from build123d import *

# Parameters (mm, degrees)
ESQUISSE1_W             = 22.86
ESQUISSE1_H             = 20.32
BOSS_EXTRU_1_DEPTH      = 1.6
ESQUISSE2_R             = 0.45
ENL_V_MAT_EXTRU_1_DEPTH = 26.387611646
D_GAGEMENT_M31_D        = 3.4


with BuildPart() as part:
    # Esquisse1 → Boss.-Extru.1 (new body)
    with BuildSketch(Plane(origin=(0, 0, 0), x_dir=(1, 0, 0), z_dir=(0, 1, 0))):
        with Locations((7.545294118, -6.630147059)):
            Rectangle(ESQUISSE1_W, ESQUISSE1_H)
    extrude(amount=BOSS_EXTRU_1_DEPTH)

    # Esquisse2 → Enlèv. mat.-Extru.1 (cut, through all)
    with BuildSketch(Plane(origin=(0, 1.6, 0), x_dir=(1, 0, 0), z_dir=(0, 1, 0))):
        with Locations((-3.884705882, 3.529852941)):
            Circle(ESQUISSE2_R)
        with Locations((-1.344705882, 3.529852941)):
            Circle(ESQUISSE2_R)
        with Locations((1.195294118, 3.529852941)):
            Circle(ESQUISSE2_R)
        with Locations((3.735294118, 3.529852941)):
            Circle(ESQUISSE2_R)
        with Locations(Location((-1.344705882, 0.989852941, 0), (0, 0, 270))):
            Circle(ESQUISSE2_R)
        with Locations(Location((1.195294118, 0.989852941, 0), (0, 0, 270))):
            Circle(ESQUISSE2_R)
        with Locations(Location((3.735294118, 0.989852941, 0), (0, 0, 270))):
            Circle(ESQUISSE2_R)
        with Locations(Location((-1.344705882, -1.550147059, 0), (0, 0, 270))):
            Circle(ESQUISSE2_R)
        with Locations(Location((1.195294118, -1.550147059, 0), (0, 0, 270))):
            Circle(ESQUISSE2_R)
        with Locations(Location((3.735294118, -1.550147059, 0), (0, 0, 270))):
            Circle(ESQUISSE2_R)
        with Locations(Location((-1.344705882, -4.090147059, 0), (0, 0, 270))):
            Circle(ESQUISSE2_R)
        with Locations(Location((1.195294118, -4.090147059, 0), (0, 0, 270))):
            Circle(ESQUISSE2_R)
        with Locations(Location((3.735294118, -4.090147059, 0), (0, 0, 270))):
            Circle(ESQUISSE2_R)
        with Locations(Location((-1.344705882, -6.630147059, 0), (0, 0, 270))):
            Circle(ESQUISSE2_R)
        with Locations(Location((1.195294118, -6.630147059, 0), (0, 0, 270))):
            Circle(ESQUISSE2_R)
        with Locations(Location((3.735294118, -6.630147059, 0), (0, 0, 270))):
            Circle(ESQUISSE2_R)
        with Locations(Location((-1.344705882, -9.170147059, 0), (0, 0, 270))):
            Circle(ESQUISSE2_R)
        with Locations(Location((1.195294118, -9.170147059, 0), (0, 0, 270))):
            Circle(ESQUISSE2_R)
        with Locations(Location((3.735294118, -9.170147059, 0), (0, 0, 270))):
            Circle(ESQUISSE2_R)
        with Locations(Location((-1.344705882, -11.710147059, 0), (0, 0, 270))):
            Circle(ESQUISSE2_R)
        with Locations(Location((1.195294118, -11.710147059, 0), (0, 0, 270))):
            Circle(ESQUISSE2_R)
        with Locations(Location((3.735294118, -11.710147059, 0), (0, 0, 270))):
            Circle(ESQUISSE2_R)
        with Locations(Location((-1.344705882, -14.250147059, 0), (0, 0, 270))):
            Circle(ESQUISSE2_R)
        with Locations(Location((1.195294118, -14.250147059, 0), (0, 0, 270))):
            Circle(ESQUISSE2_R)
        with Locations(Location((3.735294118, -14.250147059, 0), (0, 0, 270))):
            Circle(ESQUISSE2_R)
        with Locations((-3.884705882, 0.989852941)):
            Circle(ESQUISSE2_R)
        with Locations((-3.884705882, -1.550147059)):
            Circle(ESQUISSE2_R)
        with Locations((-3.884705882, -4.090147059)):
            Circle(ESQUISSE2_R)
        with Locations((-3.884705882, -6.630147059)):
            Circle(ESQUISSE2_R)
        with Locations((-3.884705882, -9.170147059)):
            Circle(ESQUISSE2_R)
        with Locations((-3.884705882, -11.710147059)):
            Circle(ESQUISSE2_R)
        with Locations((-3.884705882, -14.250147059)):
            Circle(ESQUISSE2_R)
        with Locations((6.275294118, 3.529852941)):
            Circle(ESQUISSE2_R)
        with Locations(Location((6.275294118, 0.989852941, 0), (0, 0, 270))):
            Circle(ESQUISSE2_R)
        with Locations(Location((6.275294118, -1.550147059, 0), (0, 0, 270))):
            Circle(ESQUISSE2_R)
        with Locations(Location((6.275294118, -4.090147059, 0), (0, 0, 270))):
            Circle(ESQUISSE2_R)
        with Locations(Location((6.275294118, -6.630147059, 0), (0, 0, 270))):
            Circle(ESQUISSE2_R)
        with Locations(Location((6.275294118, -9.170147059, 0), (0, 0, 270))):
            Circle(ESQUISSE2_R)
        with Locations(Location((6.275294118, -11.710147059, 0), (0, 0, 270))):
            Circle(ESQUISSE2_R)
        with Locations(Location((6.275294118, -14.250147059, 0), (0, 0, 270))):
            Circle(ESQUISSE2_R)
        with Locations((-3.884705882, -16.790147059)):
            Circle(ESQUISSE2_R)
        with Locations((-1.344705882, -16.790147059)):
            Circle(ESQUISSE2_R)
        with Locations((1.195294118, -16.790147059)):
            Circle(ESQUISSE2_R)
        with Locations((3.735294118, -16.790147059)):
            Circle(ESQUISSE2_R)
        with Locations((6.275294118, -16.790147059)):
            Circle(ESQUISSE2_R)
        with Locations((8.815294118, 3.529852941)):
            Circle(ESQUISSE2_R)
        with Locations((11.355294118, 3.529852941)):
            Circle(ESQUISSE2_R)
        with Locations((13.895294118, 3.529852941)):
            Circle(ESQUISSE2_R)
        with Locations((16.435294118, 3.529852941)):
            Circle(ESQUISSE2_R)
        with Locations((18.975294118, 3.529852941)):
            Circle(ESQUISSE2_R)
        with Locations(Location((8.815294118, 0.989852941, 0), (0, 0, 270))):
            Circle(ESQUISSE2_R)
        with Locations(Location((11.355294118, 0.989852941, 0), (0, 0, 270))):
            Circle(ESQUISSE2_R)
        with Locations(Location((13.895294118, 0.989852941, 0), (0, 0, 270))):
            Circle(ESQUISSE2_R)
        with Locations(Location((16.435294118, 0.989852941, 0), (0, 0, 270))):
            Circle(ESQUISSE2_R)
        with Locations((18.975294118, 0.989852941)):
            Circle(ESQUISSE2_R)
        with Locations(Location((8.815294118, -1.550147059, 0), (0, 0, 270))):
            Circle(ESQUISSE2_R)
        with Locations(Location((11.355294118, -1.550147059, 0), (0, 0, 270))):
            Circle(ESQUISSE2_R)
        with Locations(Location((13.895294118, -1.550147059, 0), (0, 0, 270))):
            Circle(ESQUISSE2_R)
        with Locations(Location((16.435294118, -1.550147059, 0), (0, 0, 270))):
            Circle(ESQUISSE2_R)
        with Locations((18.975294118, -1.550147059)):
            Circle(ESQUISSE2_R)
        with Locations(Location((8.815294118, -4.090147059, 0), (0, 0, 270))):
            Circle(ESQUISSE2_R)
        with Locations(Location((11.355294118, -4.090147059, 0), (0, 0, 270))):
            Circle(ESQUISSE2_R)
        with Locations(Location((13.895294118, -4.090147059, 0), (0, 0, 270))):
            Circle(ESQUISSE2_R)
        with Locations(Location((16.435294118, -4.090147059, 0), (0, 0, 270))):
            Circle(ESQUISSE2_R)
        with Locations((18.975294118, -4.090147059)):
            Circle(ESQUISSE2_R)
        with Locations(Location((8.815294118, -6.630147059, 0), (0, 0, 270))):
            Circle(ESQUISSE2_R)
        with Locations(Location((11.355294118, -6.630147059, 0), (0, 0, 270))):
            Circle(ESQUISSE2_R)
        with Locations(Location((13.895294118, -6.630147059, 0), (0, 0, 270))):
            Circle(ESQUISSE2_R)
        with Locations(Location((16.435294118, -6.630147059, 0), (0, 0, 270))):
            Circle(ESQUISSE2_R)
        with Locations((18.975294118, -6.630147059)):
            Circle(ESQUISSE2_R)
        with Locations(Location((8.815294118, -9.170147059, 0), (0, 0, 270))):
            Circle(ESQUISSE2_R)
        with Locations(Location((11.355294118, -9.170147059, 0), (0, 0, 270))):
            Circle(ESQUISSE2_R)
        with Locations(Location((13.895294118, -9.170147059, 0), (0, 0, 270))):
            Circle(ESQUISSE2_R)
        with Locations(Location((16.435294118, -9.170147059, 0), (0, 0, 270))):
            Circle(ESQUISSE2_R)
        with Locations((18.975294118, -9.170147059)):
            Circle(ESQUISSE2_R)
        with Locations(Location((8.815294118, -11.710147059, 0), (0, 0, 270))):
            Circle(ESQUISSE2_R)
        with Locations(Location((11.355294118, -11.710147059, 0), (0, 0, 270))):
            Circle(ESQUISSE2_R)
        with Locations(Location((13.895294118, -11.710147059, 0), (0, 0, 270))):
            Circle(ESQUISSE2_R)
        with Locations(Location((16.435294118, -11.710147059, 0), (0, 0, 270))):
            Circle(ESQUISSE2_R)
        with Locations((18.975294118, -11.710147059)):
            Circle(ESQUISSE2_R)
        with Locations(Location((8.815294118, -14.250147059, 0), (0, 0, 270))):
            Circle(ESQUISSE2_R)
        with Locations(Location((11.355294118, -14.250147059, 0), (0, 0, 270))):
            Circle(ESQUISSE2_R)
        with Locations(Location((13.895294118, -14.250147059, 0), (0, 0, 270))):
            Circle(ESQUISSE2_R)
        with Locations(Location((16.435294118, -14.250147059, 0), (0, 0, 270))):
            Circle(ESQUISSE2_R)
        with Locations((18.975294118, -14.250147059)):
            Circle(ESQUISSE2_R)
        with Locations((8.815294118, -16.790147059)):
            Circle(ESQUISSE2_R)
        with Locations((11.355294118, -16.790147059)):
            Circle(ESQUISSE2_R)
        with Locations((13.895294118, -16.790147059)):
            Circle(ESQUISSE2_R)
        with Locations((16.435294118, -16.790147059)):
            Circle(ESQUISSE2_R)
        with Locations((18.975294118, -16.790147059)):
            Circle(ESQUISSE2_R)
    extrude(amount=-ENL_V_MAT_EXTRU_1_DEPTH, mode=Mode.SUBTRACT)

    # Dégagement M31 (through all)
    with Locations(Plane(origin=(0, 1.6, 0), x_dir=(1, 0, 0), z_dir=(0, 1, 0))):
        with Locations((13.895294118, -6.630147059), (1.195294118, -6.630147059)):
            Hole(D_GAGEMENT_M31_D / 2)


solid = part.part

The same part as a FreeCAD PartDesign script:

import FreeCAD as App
import Part
import Sketcher
from FreeCAD import Vector
Q = App.Units.Quantity

doc = App.newDocument("Part")
body = doc.addObject("PartDesign::Body", "Body")

# Sketch on XZ plane
sketch1 = body.newObject("Sketcher::SketchObject", "Sketch")
sketch1.AttachmentSupport = (doc.getObject("XZ_Plane"), [""])
sketch1.MapMode = "FlatFace"
sketch1.addGeometry(Part.LineSegment(Vector(-4, -4, 0), Vector(-4, 17, 0)), False)
sketch1.addGeometry(Part.LineSegment(Vector(-4, 17, 0), Vector(19, 17, 0)), False)
sketch1.addGeometry(Part.LineSegment(Vector(19, 17, 0), Vector(19, -4, 0)), False)
sketch1.addGeometry(Part.LineSegment(Vector(19, -4, 0), Vector(-4, -4, 0)), False)
sketch1.addConstraint(Sketcher.Constraint("Coincident", 0, 2, 1, 1))
sketch1.addConstraint(Sketcher.Constraint("Coincident", 1, 2, 2, 1))
sketch1.addConstraint(Sketcher.Constraint("Coincident", 2, 2, 3, 1))
sketch1.addConstraint(Sketcher.Constraint("Coincident", 3, 2, 0, 1))
sketch1.addConstraint(Sketcher.Constraint("Vertical", 0))
sketch1.addConstraint(Sketcher.Constraint("Horizontal", 1))
sketch1.addConstraint(Sketcher.Constraint("Vertical", 2))
sketch1.addConstraint(Sketcher.Constraint("Horizontal", 3))
sketch1.addConstraint(Sketcher.Constraint("DistanceX", 1, 1, 1, 2, Q("22.86 mm")))
sketch1.addConstraint(Sketcher.Constraint("DistanceY", 0, 1, 0, 2, Q("20.32 mm")))
sketch1.addConstraint(Sketcher.Constraint("DistanceX", 0, 2, -1, 1, Q("3.884706 mm")))
sketch1.addConstraint(Sketcher.Constraint("DistanceY", -1, 1, 0, 2, Q("16.790147 mm")))
pad1 = body.newObject("PartDesign::Pad", "Pad")
pad1.Profile = sketch1
pad1.Length = 1.6
pad1.Reversed = True

# Sketch on XZ plane
sketch2 = body.newObject("Sketcher::SketchObject", "Sketch001")
sketch2.AttachmentSupport = (doc.getObject("XZ_Plane"), [""])
sketch2.MapMode = "FlatFace"
sketch2.AttachmentOffset = App.Placement(Vector(0, 0, -1.6), App.Rotation())
sketch2.addGeometry(Part.Circle(Vector(-3.88, -3.53, 0), Vector(0, 0, 1), 0.45), False)
sketch2.addGeometry(Part.Circle(Vector(-1.34, -3.53, 0), Vector(0, 0, 1), 0.45), False)
sketch2.addGeometry(Part.Circle(Vector(1.2, -3.53, 0), Vector(0, 0, 1), 0.45), False)
sketch2.addGeometry(Part.Circle(Vector(3.74, -3.53, 0), Vector(0, 0, 1), 0.45), False)
sketch2.addGeometry(Part.Circle(Vector(-1.34, -0.99, 0), Vector(0, 0, 1), 0.45), False)
sketch2.addGeometry(Part.Circle(Vector(1.2, -0.99, 0), Vector(0, 0, 1), 0.45), False)
sketch2.addGeometry(Part.Circle(Vector(3.74, -0.99, 0), Vector(0, 0, 1), 0.45), False)
sketch2.addGeometry(Part.Circle(Vector(-1.34, 1.55, 0), Vector(0, 0, 1), 0.45), False)
sketch2.addGeometry(Part.Circle(Vector(1.2, 1.55, 0), Vector(0, 0, 1), 0.45), False)
sketch2.addGeometry(Part.Circle(Vector(3.74, 1.55, 0), Vector(0, 0, 1), 0.45), False)
sketch2.addGeometry(Part.Circle(Vector(-1.34, 4.09, 0), Vector(0, 0, 1), 0.45), False)
sketch2.addGeometry(Part.Circle(Vector(1.2, 4.09, 0), Vector(0, 0, 1), 0.45), False)
sketch2.addGeometry(Part.Circle(Vector(3.74, 4.09, 0), Vector(0, 0, 1), 0.45), False)
sketch2.addGeometry(Part.Circle(Vector(-1.34, 6.63, 0), Vector(0, 0, 1), 0.45), False)
sketch2.addGeometry(Part.Circle(Vector(1.2, 6.63, 0), Vector(0, 0, 1), 0.45), False)
sketch2.addGeometry(Part.Circle(Vector(3.74, 6.63, 0), Vector(0, 0, 1), 0.45), False)
sketch2.addGeometry(Part.Circle(Vector(-1.34, 9.17, 0), Vector(0, 0, 1), 0.45), False)
sketch2.addGeometry(Part.Circle(Vector(1.2, 9.17, 0), Vector(0, 0, 1), 0.45), False)
sketch2.addGeometry(Part.Circle(Vector(3.74, 9.17, 0), Vector(0, 0, 1), 0.45), False)
sketch2.addGeometry(Part.Circle(Vector(-1.34, 11.71, 0), Vector(0, 0, 1), 0.45), False)
sketch2.addGeometry(Part.Circle(Vector(1.2, 11.71, 0), Vector(0, 0, 1), 0.45), False)
sketch2.addGeometry(Part.Circle(Vector(3.74, 11.71, 0), Vector(0, 0, 1), 0.45), False)
sketch2.addGeometry(Part.Circle(Vector(-1.34, 14.25, 0), Vector(0, 0, 1), 0.45), False)
sketch2.addGeometry(Part.Circle(Vector(1.2, 14.25, 0), Vector(0, 0, 1), 0.45), False)
sketch2.addGeometry(Part.Circle(Vector(3.74, 14.25, 0), Vector(0, 0, 1), 0.45), False)
sketch2.addGeometry(Part.Circle(Vector(-3.88, -0.99, 0), Vector(0, 0, 1), 0.45), False)
sketch2.addGeometry(Part.Circle(Vector(-3.88, 1.55, 0), Vector(0, 0, 1), 0.45), False)
sketch2.addGeometry(Part.Circle(Vector(-3.88, 4.09, 0), Vector(0, 0, 1), 0.45), False)
sketch2.addGeometry(Part.Circle(Vector(-3.88, 6.63, 0), Vector(0, 0, 1), 0.45), False)
sketch2.addGeometry(Part.Circle(Vector(-3.88, 9.17, 0), Vector(0, 0, 1), 0.45), False)
sketch2.addGeometry(Part.Circle(Vector(-3.88, 11.71, 0), Vector(0, 0, 1), 0.45), False)
sketch2.addGeometry(Part.Circle(Vector(-3.88, 14.25, 0), Vector(0, 0, 1), 0.45), False)
sketch2.addGeometry(Part.Circle(Vector(6.28, -3.53, 0), Vector(0, 0, 1), 0.45), False)
sketch2.addGeometry(Part.Circle(Vector(6.28, -0.99, 0), Vector(0, 0, 1), 0.45), False)
sketch2.addGeometry(Part.Circle(Vector(6.28, 1.55, 0), Vector(0, 0, 1), 0.45), False)
sketch2.addGeometry(Part.Circle(Vector(6.28, 4.09, 0), Vector(0, 0, 1), 0.45), False)
sketch2.addGeometry(Part.Circle(Vector(6.28, 6.63, 0), Vector(0, 0, 1), 0.45), False)
sketch2.addGeometry(Part.Circle(Vector(6.28, 9.17, 0), Vector(0, 0, 1), 0.45), False)
sketch2.addGeometry(Part.Circle(Vector(6.28, 11.71, 0), Vector(0, 0, 1), 0.45), False)
sketch2.addGeometry(Part.Circle(Vector(6.28, 14.25, 0), Vector(0, 0, 1), 0.45), False)
sketch2.addGeometry(Part.Circle(Vector(-3.88, 16.79, 0), Vector(0, 0, 1), 0.45), False)
sketch2.addGeometry(Part.Circle(Vector(-1.34, 16.79, 0), Vector(0, 0, 1), 0.45), False)
sketch2.addGeometry(Part.Circle(Vector(1.2, 16.79, 0), Vector(0, 0, 1), 0.45), False)
sketch2.addGeometry(Part.Circle(Vector(3.74, 16.79, 0), Vector(0, 0, 1), 0.45), False)
sketch2.addGeometry(Part.Circle(Vector(6.28, 16.79, 0), Vector(0, 0, 1), 0.45), False)
sketch2.addGeometry(Part.Circle(Vector(8.82, -3.53, 0), Vector(0, 0, 1), 0.45), False)
sketch2.addGeometry(Part.Circle(Vector(11.36, -3.53, 0), Vector(0, 0, 1), 0.45), False)
sketch2.addGeometry(Part.Circle(Vector(13.9, -3.53, 0), Vector(0, 0, 1), 0.45), False)
sketch2.addGeometry(Part.Circle(Vector(16.44, -3.53, 0), Vector(0, 0, 1), 0.45), False)
sketch2.addGeometry(Part.Circle(Vector(18.98, -3.53, 0), Vector(0, 0, 1), 0.45), False)
sketch2.addGeometry(Part.Circle(Vector(8.82, -0.99, 0), Vector(0, 0, 1), 0.45), False)
sketch2.addGeometry(Part.Circle(Vector(11.36, -0.99, 0), Vector(0, 0, 1), 0.45), False)
sketch2.addGeometry(Part.Circle(Vector(13.9, -0.99, 0), Vector(0, 0, 1), 0.45), False)
sketch2.addGeometry(Part.Circle(Vector(16.44, -0.99, 0), Vector(0, 0, 1), 0.45), False)
sketch2.addGeometry(Part.Circle(Vector(18.98, -0.99, 0), Vector(0, 0, 1), 0.45), False)
sketch2.addGeometry(Part.Circle(Vector(8.82, 1.55, 0), Vector(0, 0, 1), 0.45), False)
sketch2.addGeometry(Part.Circle(Vector(11.36, 1.55, 0), Vector(0, 0, 1), 0.45), False)
sketch2.addGeometry(Part.Circle(Vector(13.9, 1.55, 0), Vector(0, 0, 1), 0.45), False)
sketch2.addGeometry(Part.Circle(Vector(16.44, 1.55, 0), Vector(0, 0, 1), 0.45), False)
sketch2.addGeometry(Part.Circle(Vector(18.98, 1.55, 0), Vector(0, 0, 1), 0.45), False)
sketch2.addGeometry(Part.Circle(Vector(8.82, 4.09, 0), Vector(0, 0, 1), 0.45), False)
sketch2.addGeometry(Part.Circle(Vector(11.36, 4.09, 0), Vector(0, 0, 1), 0.45), False)
sketch2.addGeometry(Part.Circle(Vector(13.9, 4.09, 0), Vector(0, 0, 1), 0.45), False)
sketch2.addGeometry(Part.Circle(Vector(16.44, 4.09, 0), Vector(0, 0, 1), 0.45), False)
sketch2.addGeometry(Part.Circle(Vector(18.98, 4.09, 0), Vector(0, 0, 1), 0.45), False)
sketch2.addGeometry(Part.Circle(Vector(8.82, 6.63, 0), Vector(0, 0, 1), 0.45), False)
sketch2.addGeometry(Part.Circle(Vector(11.36, 6.63, 0), Vector(0, 0, 1), 0.45), False)
sketch2.addGeometry(Part.Circle(Vector(13.9, 6.63, 0), Vector(0, 0, 1), 0.45), False)
sketch2.addGeometry(Part.Circle(Vector(16.44, 6.63, 0), Vector(0, 0, 1), 0.45), False)
sketch2.addGeometry(Part.Circle(Vector(18.98, 6.63, 0), Vector(0, 0, 1), 0.45), False)
sketch2.addGeometry(Part.Circle(Vector(8.82, 9.17, 0), Vector(0, 0, 1), 0.45), False)
sketch2.addGeometry(Part.Circle(Vector(11.36, 9.17, 0), Vector(0, 0, 1), 0.45), False)
sketch2.addGeometry(Part.Circle(Vector(13.9, 9.17, 0), Vector(0, 0, 1), 0.45), False)
sketch2.addGeometry(Part.Circle(Vector(16.44, 9.17, 0), Vector(0, 0, 1), 0.45), False)
sketch2.addGeometry(Part.Circle(Vector(18.98, 9.17, 0), Vector(0, 0, 1), 0.45), False)
sketch2.addGeometry(Part.Circle(Vector(8.82, 11.71, 0), Vector(0, 0, 1), 0.45), False)
sketch2.addGeometry(Part.Circle(Vector(11.36, 11.71, 0), Vector(0, 0, 1), 0.45), False)
sketch2.addGeometry(Part.Circle(Vector(13.9, 11.71, 0), Vector(0, 0, 1), 0.45), False)
sketch2.addGeometry(Part.Circle(Vector(16.44, 11.71, 0), Vector(0, 0, 1), 0.45), False)
sketch2.addGeometry(Part.Circle(Vector(18.98, 11.71, 0), Vector(0, 0, 1), 0.45), False)
sketch2.addGeometry(Part.Circle(Vector(8.82, 14.25, 0), Vector(0, 0, 1), 0.45), False)
sketch2.addGeometry(Part.Circle(Vector(11.36, 14.25, 0), Vector(0, 0, 1), 0.45), False)
sketch2.addGeometry(Part.Circle(Vector(13.9, 14.25, 0), Vector(0, 0, 1), 0.45), False)
sketch2.addGeometry(Part.Circle(Vector(16.44, 14.25, 0), Vector(0, 0, 1), 0.45), False)
sketch2.addGeometry(Part.Circle(Vector(18.98, 14.25, 0), Vector(0, 0, 1), 0.45), False)
sketch2.addGeometry(Part.Circle(Vector(8.82, 16.79, 0), Vector(0, 0, 1), 0.45), False)
sketch2.addGeometry(Part.Circle(Vector(11.36, 16.79, 0), Vector(0, 0, 1), 0.45), False)
sketch2.addGeometry(Part.Circle(Vector(13.9, 16.79, 0), Vector(0, 0, 1), 0.45), False)
sketch2.addGeometry(Part.Circle(Vector(16.44, 16.79, 0), Vector(0, 0, 1), 0.45), False)
sketch2.addGeometry(Part.Circle(Vector(18.98, 16.79, 0), Vector(0, 0, 1), 0.45), False)
sketch2.addConstraint(Sketcher.Constraint("Equal", 0, 1))
sketch2.addConstraint(Sketcher.Constraint("Equal", 1, 2))
sketch2.addConstraint(Sketcher.Constraint("Equal", 2, 3))
sketch2.addConstraint(Sketcher.Constraint("Equal", 3, 4))
sketch2.addConstraint(Sketcher.Constraint("Equal", 4, 5))
sketch2.addConstraint(Sketcher.Constraint("Equal", 5, 6))
sketch2.addConstraint(Sketcher.Constraint("Equal", 6, 7))
sketch2.addConstraint(Sketcher.Constraint("Equal", 7, 8))
sketch2.addConstraint(Sketcher.Constraint("Equal", 8, 9))
sketch2.addConstraint(Sketcher.Constraint("Equal", 9, 10))
sketch2.addConstraint(Sketcher.Constraint("Equal", 10, 11))
sketch2.addConstraint(Sketcher.Constraint("Equal", 11, 12))
sketch2.addConstraint(Sketcher.Constraint("Equal", 12, 13))
sketch2.addConstraint(Sketcher.Constraint("Equal", 13, 14))
sketch2.addConstraint(Sketcher.Constraint("Equal", 14, 15))
sketch2.addConstraint(Sketcher.Constraint("Equal", 15, 16))
sketch2.addConstraint(Sketcher.Constraint("Equal", 16, 17))
sketch2.addConstraint(Sketcher.Constraint("Equal", 17, 18))
sketch2.addConstraint(Sketcher.Constraint("Equal", 18, 19))
sketch2.addConstraint(Sketcher.Constraint("Equal", 19, 20))
sketch2.addConstraint(Sketcher.Constraint("Equal", 20, 21))
sketch2.addConstraint(Sketcher.Constraint("Equal", 21, 22))
sketch2.addConstraint(Sketcher.Constraint("Equal", 22, 23))
sketch2.addConstraint(Sketcher.Constraint("Equal", 23, 24))
sketch2.addConstraint(Sketcher.Constraint("Equal", 24, 25))
sketch2.addConstraint(Sketcher.Constraint("Equal", 25, 26))
sketch2.addConstraint(Sketcher.Constraint("Equal", 26, 27))
sketch2.addConstraint(Sketcher.Constraint("Equal", 27, 28))
sketch2.addConstraint(Sketcher.Constraint("Equal", 28, 29))
sketch2.addConstraint(Sketcher.Constraint("Equal", 29, 30))
sketch2.addConstraint(Sketcher.Constraint("Equal", 30, 31))
sketch2.addConstraint(Sketcher.Constraint("Equal", 31, 32))
sketch2.addConstraint(Sketcher.Constraint("Equal", 32, 33))
sketch2.addConstraint(Sketcher.Constraint("Equal", 33, 34))
sketch2.addConstraint(Sketcher.Constraint("Equal", 34, 35))
sketch2.addConstraint(Sketcher.Constraint("Equal", 35, 36))
sketch2.addConstraint(Sketcher.Constraint("Equal", 36, 37))
sketch2.addConstraint(Sketcher.Constraint("Equal", 37, 38))
sketch2.addConstraint(Sketcher.Constraint("Equal", 38, 39))
sketch2.addConstraint(Sketcher.Constraint("Equal", 39, 40))
sketch2.addConstraint(Sketcher.Constraint("Equal", 40, 41))
sketch2.addConstraint(Sketcher.Constraint("Equal", 41, 42))
sketch2.addConstraint(Sketcher.Constraint("Equal", 42, 43))
sketch2.addConstraint(Sketcher.Constraint("Equal", 43, 44))
sketch2.addConstraint(Sketcher.Constraint("Equal", 44, 45))
sketch2.addConstraint(Sketcher.Constraint("Equal", 45, 46))
sketch2.addConstraint(Sketcher.Constraint("Equal", 46, 47))
sketch2.addConstraint(Sketcher.Constraint("Equal", 47, 48))
sketch2.addConstraint(Sketcher.Constraint("Equal", 48, 49))
sketch2.addConstraint(Sketcher.Constraint("Equal", 49, 50))
sketch2.addConstraint(Sketcher.Constraint("Equal", 50, 51))
sketch2.addConstraint(Sketcher.Constraint("Equal", 51, 52))
sketch2.addConstraint(Sketcher.Constraint("Equal", 52, 53))
sketch2.addConstraint(Sketcher.Constraint("Equal", 53, 54))
sketch2.addConstraint(Sketcher.Constraint("Equal", 54, 55))
sketch2.addConstraint(Sketcher.Constraint("Equal", 55, 56))
sketch2.addConstraint(Sketcher.Constraint("Equal", 56, 57))
sketch2.addConstraint(Sketcher.Constraint("Equal", 57, 58))
sketch2.addConstraint(Sketcher.Constraint("Equal", 58, 59))
sketch2.addConstraint(Sketcher.Constraint("Equal", 59, 60))
sketch2.addConstraint(Sketcher.Constraint("Equal", 60, 61))
sketch2.addConstraint(Sketcher.Constraint("Equal", 61, 62))
sketch2.addConstraint(Sketcher.Constraint("Equal", 62, 63))
sketch2.addConstraint(Sketcher.Constraint("Equal", 63, 64))
sketch2.addConstraint(Sketcher.Constraint("Equal", 64, 65))
sketch2.addConstraint(Sketcher.Constraint("Equal", 65, 66))
sketch2.addConstraint(Sketcher.Constraint("Equal", 66, 67))
sketch2.addConstraint(Sketcher.Constraint("Equal", 67, 68))
sketch2.addConstraint(Sketcher.Constraint("Equal", 68, 69))
sketch2.addConstraint(Sketcher.Constraint("Equal", 69, 70))
sketch2.addConstraint(Sketcher.Constraint("Equal", 70, 71))
sketch2.addConstraint(Sketcher.Constraint("Equal", 71, 72))
sketch2.addConstraint(Sketcher.Constraint("Equal", 72, 73))
sketch2.addConstraint(Sketcher.Constraint("Equal", 73, 74))
sketch2.addConstraint(Sketcher.Constraint("Equal", 74, 75))
sketch2.addConstraint(Sketcher.Constraint("Equal", 75, 76))
sketch2.addConstraint(Sketcher.Constraint("Equal", 76, 77))
sketch2.addConstraint(Sketcher.Constraint("Equal", 77, 78))
sketch2.addConstraint(Sketcher.Constraint("Equal", 78, 79))
sketch2.addConstraint(Sketcher.Constraint("Equal", 79, 80))
sketch2.addConstraint(Sketcher.Constraint("Equal", 80, 81))
sketch2.addConstraint(Sketcher.Constraint("Equal", 81, 82))
sketch2.addConstraint(Sketcher.Constraint("Equal", 82, 83))
sketch2.addConstraint(Sketcher.Constraint("Equal", 83, 84))
sketch2.addConstraint(Sketcher.Constraint("Equal", 84, 85))
sketch2.addConstraint(Sketcher.Constraint("Equal", 85, 86))
sketch2.addConstraint(Sketcher.Constraint("Equal", 86, 87))
sketch2.addConstraint(Sketcher.Constraint("Equal", 87, 88))
sketch2.addConstraint(Sketcher.Constraint("Equal", 88, 89))
sketch2.addConstraint(Sketcher.Constraint("Horizontal", 0, 3, 1, 3))
sketch2.addConstraint(Sketcher.Constraint("Horizontal", 1, 3, 2, 3))
sketch2.addConstraint(Sketcher.Constraint("Horizontal", 2, 3, 3, 3))
sketch2.addConstraint(Sketcher.Constraint("Horizontal", 4, 3, 5, 3))
sketch2.addConstraint(Sketcher.Constraint("Horizontal", 5, 3, 6, 3))
sketch2.addConstraint(Sketcher.Constraint("Horizontal", 7, 3, 8, 3))
sketch2.addConstraint(Sketcher.Constraint("Horizontal", 8, 3, 9, 3))
sketch2.addConstraint(Sketcher.Constraint("Horizontal", 10, 3, 11, 3))
sketch2.addConstraint(Sketcher.Constraint("Horizontal", 11, 3, 12, 3))
sketch2.addConstraint(Sketcher.Constraint("Horizontal", 13, 3, 14, 3))
sketch2.addConstraint(Sketcher.Constraint("Horizontal", 14, 3, 15, 3))
sketch2.addConstraint(Sketcher.Constraint("Horizontal", 16, 3, 17, 3))
sketch2.addConstraint(Sketcher.Constraint("Horizontal", 17, 3, 18, 3))
sketch2.addConstraint(Sketcher.Constraint("Horizontal", 19, 3, 20, 3))
sketch2.addConstraint(Sketcher.Constraint("Horizontal", 20, 3, 21, 3))
sketch2.addConstraint(Sketcher.Constraint("Horizontal", 22, 3, 23, 3))
sketch2.addConstraint(Sketcher.Constraint("Horizontal", 23, 3, 24, 3))
sketch2.addConstraint(Sketcher.Constraint("Horizontal", 6, 3, 25, 3))
sketch2.addConstraint(Sketcher.Constraint("Horizontal", 9, 3, 26, 3))
sketch2.addConstraint(Sketcher.Constraint("Horizontal", 12, 3, 27, 3))
sketch2.addConstraint(Sketcher.Constraint("Horizontal", 15, 3, 28, 3))
sketch2.addConstraint(Sketcher.Constraint("Horizontal", 18, 3, 29, 3))
sketch2.addConstraint(Sketcher.Constraint("Horizontal", 21, 3, 30, 3))
sketch2.addConstraint(Sketcher.Constraint("Horizontal", 24, 3, 31, 3))
sketch2.addConstraint(Sketcher.Constraint("Horizontal", 3, 3, 32, 3))
sketch2.addConstraint(Sketcher.Constraint("Horizontal", 25, 3, 33, 3))
sketch2.addConstraint(Sketcher.Constraint("Horizontal", 26, 3, 34, 3))
sketch2.addConstraint(Sketcher.Constraint("Horizontal", 27, 3, 35, 3))
sketch2.addConstraint(Sketcher.Constraint("Horizontal", 28, 3, 36, 3))
sketch2.addConstraint(Sketcher.Constraint("Horizontal", 29, 3, 37, 3))
sketch2.addConstraint(Sketcher.Constraint("Horizontal", 30, 3, 38, 3))
sketch2.addConstraint(Sketcher.Constraint("Horizontal", 31, 3, 39, 3))
sketch2.addConstraint(Sketcher.Constraint("Horizontal", 40, 3, 41, 3))
sketch2.addConstraint(Sketcher.Constraint("Horizontal", 41, 3, 42, 3))
sketch2.addConstraint(Sketcher.Constraint("Horizontal", 42, 3, 43, 3))
sketch2.addConstraint(Sketcher.Constraint("Horizontal", 43, 3, 44, 3))
sketch2.addConstraint(Sketcher.Constraint("Horizontal", 32, 3, 45, 3))
sketch2.addConstraint(Sketcher.Constraint("Horizontal", 45, 3, 46, 3))
sketch2.addConstraint(Sketcher.Constraint("Horizontal", 46, 3, 47, 3))
sketch2.addConstraint(Sketcher.Constraint("Horizontal", 47, 3, 48, 3))
sketch2.addConstraint(Sketcher.Constraint("Horizontal", 48, 3, 49, 3))
sketch2.addConstraint(Sketcher.Constraint("Horizontal", 33, 3, 50, 3))
sketch2.addConstraint(Sketcher.Constraint("Horizontal", 50, 3, 51, 3))
sketch2.addConstraint(Sketcher.Constraint("Horizontal", 51, 3, 52, 3))
sketch2.addConstraint(Sketcher.Constraint("Horizontal", 52, 3, 53, 3))
sketch2.addConstraint(Sketcher.Constraint("Horizontal", 53, 3, 54, 3))
sketch2.addConstraint(Sketcher.Constraint("Horizontal", 34, 3, 55, 3))
sketch2.addConstraint(Sketcher.Constraint("Horizontal", 55, 3, 56, 3))
sketch2.addConstraint(Sketcher.Constraint("Horizontal", 56, 3, 57, 3))
sketch2.addConstraint(Sketcher.Constraint("Horizontal", 57, 3, 58, 3))
sketch2.addConstraint(Sketcher.Constraint("Horizontal", 58, 3, 59, 3))
sketch2.addConstraint(Sketcher.Constraint("Horizontal", 35, 3, 60, 3))
sketch2.addConstraint(Sketcher.Constraint("Horizontal", 60, 3, 61, 3))
sketch2.addConstraint(Sketcher.Constraint("Horizontal", 61, 3, 62, 3))
sketch2.addConstraint(Sketcher.Constraint("Horizontal", 62, 3, 63, 3))
sketch2.addConstraint(Sketcher.Constraint("Horizontal", 63, 3, 64, 3))
sketch2.addConstraint(Sketcher.Constraint("Horizontal", 36, 3, 65, 3))
sketch2.addConstraint(Sketcher.Constraint("Horizontal", 65, 3, 66, 3))
sketch2.addConstraint(Sketcher.Constraint("Horizontal", 66, 3, 67, 3))
sketch2.addConstraint(Sketcher.Constraint("Horizontal", 67, 3, 68, 3))
sketch2.addConstraint(Sketcher.Constraint("Horizontal", 68, 3, 69, 3))
sketch2.addConstraint(Sketcher.Constraint("Horizontal", 37, 3, 70, 3))
sketch2.addConstraint(Sketcher.Constraint("Horizontal", 70, 3, 71, 3))
sketch2.addConstraint(Sketcher.Constraint("Horizontal", 71, 3, 72, 3))
sketch2.addConstraint(Sketcher.Constraint("Horizontal", 72, 3, 73, 3))
sketch2.addConstraint(Sketcher.Constraint("Horizontal", 73, 3, 74, 3))
sketch2.addConstraint(Sketcher.Constraint("Horizontal", 38, 3, 75, 3))
sketch2.addConstraint(Sketcher.Constraint("Horizontal", 75, 3, 76, 3))
sketch2.addConstraint(Sketcher.Constraint("Horizontal", 76, 3, 77, 3))
sketch2.addConstraint(Sketcher.Constraint("Horizontal", 77, 3, 78, 3))
sketch2.addConstraint(Sketcher.Constraint("Horizontal", 78, 3, 79, 3))
sketch2.addConstraint(Sketcher.Constraint("Horizontal", 39, 3, 80, 3))
sketch2.addConstraint(Sketcher.Constraint("Horizontal", 80, 3, 81, 3))
sketch2.addConstraint(Sketcher.Constraint("Horizontal", 81, 3, 82, 3))
sketch2.addConstraint(Sketcher.Constraint("Horizontal", 82, 3, 83, 3))
sketch2.addConstraint(Sketcher.Constraint("Horizontal", 83, 3, 84, 3))
sketch2.addConstraint(Sketcher.Constraint("Horizontal", 44, 3, 85, 3))
sketch2.addConstraint(Sketcher.Constraint("Horizontal", 85, 3, 86, 3))
sketch2.addConstraint(Sketcher.Constraint("Horizontal", 86, 3, 87, 3))
sketch2.addConstraint(Sketcher.Constraint("Horizontal", 87, 3, 88, 3))
sketch2.addConstraint(Sketcher.Constraint("Horizontal", 88, 3, 89, 3))
sketch2.addConstraint(Sketcher.Constraint("Vertical", 1, 3, 4, 3))
sketch2.addConstraint(Sketcher.Constraint("Vertical", 2, 3, 5, 3))
sketch2.addConstraint(Sketcher.Constraint("Vertical", 3, 3, 6, 3))
sketch2.addConstraint(Sketcher.Constraint("Vertical", 4, 3, 7, 3))
sketch2.addConstraint(Sketcher.Constraint("Vertical", 5, 3, 8, 3))
sketch2.addConstraint(Sketcher.Constraint("Vertical", 6, 3, 9, 3))
sketch2.addConstraint(Sketcher.Constraint("Vertical", 7, 3, 10, 3))
sketch2.addConstraint(Sketcher.Constraint("Vertical", 8, 3, 11, 3))
sketch2.addConstraint(Sketcher.Constraint("Vertical", 9, 3, 12, 3))
sketch2.addConstraint(Sketcher.Constraint("Vertical", 10, 3, 13, 3))
sketch2.addConstraint(Sketcher.Constraint("Vertical", 11, 3, 14, 3))
sketch2.addConstraint(Sketcher.Constraint("Vertical", 12, 3, 15, 3))
sketch2.addConstraint(Sketcher.Constraint("Vertical", 13, 3, 16, 3))
sketch2.addConstraint(Sketcher.Constraint("Vertical", 14, 3, 17, 3))
sketch2.addConstraint(Sketcher.Constraint("Vertical", 15, 3, 18, 3))
sketch2.addConstraint(Sketcher.Constraint("Vertical", 16, 3, 19, 3))
sketch2.addConstraint(Sketcher.Constraint("Vertical", 17, 3, 20, 3))
sketch2.addConstraint(Sketcher.Constraint("Vertical", 18, 3, 21, 3))
sketch2.addConstraint(Sketcher.Constraint("Vertical", 19, 3, 22, 3))
sketch2.addConstraint(Sketcher.Constraint("Vertical", 20, 3, 23, 3))
sketch2.addConstraint(Sketcher.Constraint("Vertical", 21, 3, 24, 3))
sketch2.addConstraint(Sketcher.Constraint("Vertical", 0, 3, 25, 3))
sketch2.addConstraint(Sketcher.Constraint("Vertical", 25, 3, 26, 3))
sketch2.addConstraint(Sketcher.Constraint("Vertical", 26, 3, 27, 3))
sketch2.addConstraint(Sketcher.Constraint("Vertical", 27, 3, 28, 3))
sketch2.addConstraint(Sketcher.Constraint("Vertical", 28, 3, 29, 3))
sketch2.addConstraint(Sketcher.Constraint("Vertical", 29, 3, 30, 3))
sketch2.addConstraint(Sketcher.Constraint("Vertical", 30, 3, 31, 3))
sketch2.addConstraint(Sketcher.Constraint("Vertical", 32, 3, 33, 3))
sketch2.addConstraint(Sketcher.Constraint("Vertical", 33, 3, 34, 3))
sketch2.addConstraint(Sketcher.Constraint("Vertical", 34, 3, 35, 3))
sketch2.addConstraint(Sketcher.Constraint("Vertical", 35, 3, 36, 3))
sketch2.addConstraint(Sketcher.Constraint("Vertical", 36, 3, 37, 3))
sketch2.addConstraint(Sketcher.Constraint("Vertical", 37, 3, 38, 3))
sketch2.addConstraint(Sketcher.Constraint("Vertical", 38, 3, 39, 3))
sketch2.addConstraint(Sketcher.Constraint("Vertical", 31, 3, 40, 3))
sketch2.addConstraint(Sketcher.Constraint("Vertical", 22, 3, 41, 3))
sketch2.addConstraint(Sketcher.Constraint("Vertical", 23, 3, 42, 3))
sketch2.addConstraint(Sketcher.Constraint("Vertical", 24, 3, 43, 3))
sketch2.addConstraint(Sketcher.Constraint("Vertical", 39, 3, 44, 3))
sketch2.addConstraint(Sketcher.Constraint("Vertical", 45, 3, 50, 3))
sketch2.addConstraint(Sketcher.Constraint("Vertical", 46, 3, 51, 3))
sketch2.addConstraint(Sketcher.Constraint("Vertical", 47, 3, 52, 3))
sketch2.addConstraint(Sketcher.Constraint("Vertical", 48, 3, 53, 3))
sketch2.addConstraint(Sketcher.Constraint("Vertical", 49, 3, 54, 3))
sketch2.addConstraint(Sketcher.Constraint("Vertical", 50, 3, 55, 3))
sketch2.addConstraint(Sketcher.Constraint("Vertical", 51, 3, 56, 3))
sketch2.addConstraint(Sketcher.Constraint("Vertical", 52, 3, 57, 3))
sketch2.addConstraint(Sketcher.Constraint("Vertical", 53, 3, 58, 3))
sketch2.addConstraint(Sketcher.Constraint("Vertical", 54, 3, 59, 3))
sketch2.addConstraint(Sketcher.Constraint("Vertical", 55, 3, 60, 3))
sketch2.addConstraint(Sketcher.Constraint("Vertical", 56, 3, 61, 3))
sketch2.addConstraint(Sketcher.Constraint("Vertical", 57, 3, 62, 3))
sketch2.addConstraint(Sketcher.Constraint("Vertical", 58, 3, 63, 3))
sketch2.addConstraint(Sketcher.Constraint("Vertical", 59, 3, 64, 3))
sketch2.addConstraint(Sketcher.Constraint("Vertical", 60, 3, 65, 3))
sketch2.addConstraint(Sketcher.Constraint("Vertical", 61, 3, 66, 3))
sketch2.addConstraint(Sketcher.Constraint("Vertical", 62, 3, 67, 3))
sketch2.addConstraint(Sketcher.Constraint("Vertical", 63, 3, 68, 3))
sketch2.addConstraint(Sketcher.Constraint("Vertical", 64, 3, 69, 3))
sketch2.addConstraint(Sketcher.Constraint("Vertical", 65, 3, 70, 3))
sketch2.addConstraint(Sketcher.Constraint("Vertical", 66, 3, 71, 3))
sketch2.addConstraint(Sketcher.Constraint("Vertical", 67, 3, 72, 3))
sketch2.addConstraint(Sketcher.Constraint("Vertical", 68, 3, 73, 3))
sketch2.addConstraint(Sketcher.Constraint("Vertical", 69, 3, 74, 3))
sketch2.addConstraint(Sketcher.Constraint("Vertical", 70, 3, 75, 3))
sketch2.addConstraint(Sketcher.Constraint("Vertical", 71, 3, 76, 3))
sketch2.addConstraint(Sketcher.Constraint("Vertical", 72, 3, 77, 3))
sketch2.addConstraint(Sketcher.Constraint("Vertical", 73, 3, 78, 3))
sketch2.addConstraint(Sketcher.Constraint("Vertical", 74, 3, 79, 3))
sketch2.addConstraint(Sketcher.Constraint("Vertical", 75, 3, 80, 3))
sketch2.addConstraint(Sketcher.Constraint("Vertical", 76, 3, 81, 3))
sketch2.addConstraint(Sketcher.Constraint("Vertical", 77, 3, 82, 3))
sketch2.addConstraint(Sketcher.Constraint("Vertical", 78, 3, 83, 3))
sketch2.addConstraint(Sketcher.Constraint("Vertical", 79, 3, 84, 3))
sketch2.addConstraint(Sketcher.Constraint("Vertical", 80, 3, 85, 3))
sketch2.addConstraint(Sketcher.Constraint("Vertical", 81, 3, 86, 3))
sketch2.addConstraint(Sketcher.Constraint("Vertical", 82, 3, 87, 3))
sketch2.addConstraint(Sketcher.Constraint("Vertical", 83, 3, 88, 3))
sketch2.addConstraint(Sketcher.Constraint("Vertical", 84, 3, 89, 3))
sketch2.addConstraint(Sketcher.Constraint("Diameter", 0, Q("0.9 mm")))
sketch2.addConstraint(Sketcher.Constraint("DistanceX", 0, 3, -1, 1, Q("3.884706 mm")))
sketch2.addConstraint(Sketcher.Constraint("DistanceY", 0, 3, -1, 1, Q("3.529853 mm")))
sketch2.addConstraint(Sketcher.Constraint("DistanceX", 1, 3, -1, 1, Q("1.344706 mm")))
sketch2.addConstraint(Sketcher.Constraint("DistanceX", -1, 1, 2, 3, Q("1.195294 mm")))
sketch2.addConstraint(Sketcher.Constraint("DistanceX", -1, 1, 3, 3, Q("3.735294 mm")))
sketch2.addConstraint(Sketcher.Constraint("DistanceY", 4, 3, -1, 1, Q("0.989853 mm")))
sketch2.addConstraint(Sketcher.Constraint("DistanceY", -1, 1, 7, 3, Q("1.550147 mm")))
sketch2.addConstraint(Sketcher.Constraint("DistanceY", -1, 1, 10, 3, Q("4.090147 mm")))
sketch2.addConstraint(Sketcher.Constraint("DistanceY", -1, 1, 13, 3, Q("6.630147 mm")))
sketch2.addConstraint(Sketcher.Constraint("DistanceY", -1, 1, 16, 3, Q("9.170147 mm")))
sketch2.addConstraint(Sketcher.Constraint("DistanceY", -1, 1, 19, 3, Q("11.710147 mm")))
sketch2.addConstraint(Sketcher.Constraint("DistanceY", -1, 1, 22, 3, Q("14.250147 mm")))
sketch2.addConstraint(Sketcher.Constraint("DistanceX", -1, 1, 32, 3, Q("6.275294 mm")))
sketch2.addConstraint(Sketcher.Constraint("DistanceY", -1, 1, 40, 3, Q("16.790147 mm")))
sketch2.addConstraint(Sketcher.Constraint("DistanceX", -1, 1, 45, 3, Q("8.815294 mm")))
sketch2.addConstraint(Sketcher.Constraint("DistanceX", -1, 1, 46, 3, Q("11.355294 mm")))
sketch2.addConstraint(Sketcher.Constraint("DistanceX", -1, 1, 47, 3, Q("13.895294 mm")))
sketch2.addConstraint(Sketcher.Constraint("DistanceX", -1, 1, 48, 3, Q("16.435294 mm")))
sketch2.addConstraint(Sketcher.Constraint("DistanceX", -1, 1, 49, 3, Q("18.975294 mm")))
pocket1 = body.newObject("PartDesign::Pocket", "Pocket")
pocket1.Profile = sketch2
pocket1.Type = "ThroughAll"
pocket1.Reversed = True

# Sketch on XZ plane
sketch3 = body.newObject("Sketcher::SketchObject", "Sketch002")
sketch3.AttachmentSupport = (doc.getObject("XZ_Plane"), [""])
sketch3.MapMode = "FlatFace"
sketch3.AttachmentOffset = App.Placement(Vector(0, 0, -1.6), App.Rotation())
sketch3.addGeometry(Part.Circle(Vector(13.9, 6.6, 0), Vector(0, 0, 1), 1.7), False)
sketch3.addGeometry(Part.Circle(Vector(1.2, 6.6, 0), Vector(0, 0, 1), 1.7), False)
sketch3.addConstraint(Sketcher.Constraint("Equal", 0, 1))
sketch3.addConstraint(Sketcher.Constraint("Horizontal", 0, 3, 1, 3))
sketch3.addConstraint(Sketcher.Constraint("Diameter", 0, Q("3.4 mm")))
sketch3.addConstraint(Sketcher.Constraint("DistanceX", 1, 3, 0, 3, Q("12.7 mm")))
sketch3.addConstraint(Sketcher.Constraint("DistanceX", -1, 1, 0, 3, Q("13.895294 mm")))
sketch3.addConstraint(Sketcher.Constraint("DistanceY", -1, 1, 0, 3, Q("6.630147 mm")))
doc.recompute()
hole = body.newObject("PartDesign::Hole", "Hole")
hole.Profile = sketch3
hole.ThreadType = "None"
hole.Diameter = 3.4
hole.DepthType = "ThroughAll"
hole.Reversed = True

doc.recompute()
